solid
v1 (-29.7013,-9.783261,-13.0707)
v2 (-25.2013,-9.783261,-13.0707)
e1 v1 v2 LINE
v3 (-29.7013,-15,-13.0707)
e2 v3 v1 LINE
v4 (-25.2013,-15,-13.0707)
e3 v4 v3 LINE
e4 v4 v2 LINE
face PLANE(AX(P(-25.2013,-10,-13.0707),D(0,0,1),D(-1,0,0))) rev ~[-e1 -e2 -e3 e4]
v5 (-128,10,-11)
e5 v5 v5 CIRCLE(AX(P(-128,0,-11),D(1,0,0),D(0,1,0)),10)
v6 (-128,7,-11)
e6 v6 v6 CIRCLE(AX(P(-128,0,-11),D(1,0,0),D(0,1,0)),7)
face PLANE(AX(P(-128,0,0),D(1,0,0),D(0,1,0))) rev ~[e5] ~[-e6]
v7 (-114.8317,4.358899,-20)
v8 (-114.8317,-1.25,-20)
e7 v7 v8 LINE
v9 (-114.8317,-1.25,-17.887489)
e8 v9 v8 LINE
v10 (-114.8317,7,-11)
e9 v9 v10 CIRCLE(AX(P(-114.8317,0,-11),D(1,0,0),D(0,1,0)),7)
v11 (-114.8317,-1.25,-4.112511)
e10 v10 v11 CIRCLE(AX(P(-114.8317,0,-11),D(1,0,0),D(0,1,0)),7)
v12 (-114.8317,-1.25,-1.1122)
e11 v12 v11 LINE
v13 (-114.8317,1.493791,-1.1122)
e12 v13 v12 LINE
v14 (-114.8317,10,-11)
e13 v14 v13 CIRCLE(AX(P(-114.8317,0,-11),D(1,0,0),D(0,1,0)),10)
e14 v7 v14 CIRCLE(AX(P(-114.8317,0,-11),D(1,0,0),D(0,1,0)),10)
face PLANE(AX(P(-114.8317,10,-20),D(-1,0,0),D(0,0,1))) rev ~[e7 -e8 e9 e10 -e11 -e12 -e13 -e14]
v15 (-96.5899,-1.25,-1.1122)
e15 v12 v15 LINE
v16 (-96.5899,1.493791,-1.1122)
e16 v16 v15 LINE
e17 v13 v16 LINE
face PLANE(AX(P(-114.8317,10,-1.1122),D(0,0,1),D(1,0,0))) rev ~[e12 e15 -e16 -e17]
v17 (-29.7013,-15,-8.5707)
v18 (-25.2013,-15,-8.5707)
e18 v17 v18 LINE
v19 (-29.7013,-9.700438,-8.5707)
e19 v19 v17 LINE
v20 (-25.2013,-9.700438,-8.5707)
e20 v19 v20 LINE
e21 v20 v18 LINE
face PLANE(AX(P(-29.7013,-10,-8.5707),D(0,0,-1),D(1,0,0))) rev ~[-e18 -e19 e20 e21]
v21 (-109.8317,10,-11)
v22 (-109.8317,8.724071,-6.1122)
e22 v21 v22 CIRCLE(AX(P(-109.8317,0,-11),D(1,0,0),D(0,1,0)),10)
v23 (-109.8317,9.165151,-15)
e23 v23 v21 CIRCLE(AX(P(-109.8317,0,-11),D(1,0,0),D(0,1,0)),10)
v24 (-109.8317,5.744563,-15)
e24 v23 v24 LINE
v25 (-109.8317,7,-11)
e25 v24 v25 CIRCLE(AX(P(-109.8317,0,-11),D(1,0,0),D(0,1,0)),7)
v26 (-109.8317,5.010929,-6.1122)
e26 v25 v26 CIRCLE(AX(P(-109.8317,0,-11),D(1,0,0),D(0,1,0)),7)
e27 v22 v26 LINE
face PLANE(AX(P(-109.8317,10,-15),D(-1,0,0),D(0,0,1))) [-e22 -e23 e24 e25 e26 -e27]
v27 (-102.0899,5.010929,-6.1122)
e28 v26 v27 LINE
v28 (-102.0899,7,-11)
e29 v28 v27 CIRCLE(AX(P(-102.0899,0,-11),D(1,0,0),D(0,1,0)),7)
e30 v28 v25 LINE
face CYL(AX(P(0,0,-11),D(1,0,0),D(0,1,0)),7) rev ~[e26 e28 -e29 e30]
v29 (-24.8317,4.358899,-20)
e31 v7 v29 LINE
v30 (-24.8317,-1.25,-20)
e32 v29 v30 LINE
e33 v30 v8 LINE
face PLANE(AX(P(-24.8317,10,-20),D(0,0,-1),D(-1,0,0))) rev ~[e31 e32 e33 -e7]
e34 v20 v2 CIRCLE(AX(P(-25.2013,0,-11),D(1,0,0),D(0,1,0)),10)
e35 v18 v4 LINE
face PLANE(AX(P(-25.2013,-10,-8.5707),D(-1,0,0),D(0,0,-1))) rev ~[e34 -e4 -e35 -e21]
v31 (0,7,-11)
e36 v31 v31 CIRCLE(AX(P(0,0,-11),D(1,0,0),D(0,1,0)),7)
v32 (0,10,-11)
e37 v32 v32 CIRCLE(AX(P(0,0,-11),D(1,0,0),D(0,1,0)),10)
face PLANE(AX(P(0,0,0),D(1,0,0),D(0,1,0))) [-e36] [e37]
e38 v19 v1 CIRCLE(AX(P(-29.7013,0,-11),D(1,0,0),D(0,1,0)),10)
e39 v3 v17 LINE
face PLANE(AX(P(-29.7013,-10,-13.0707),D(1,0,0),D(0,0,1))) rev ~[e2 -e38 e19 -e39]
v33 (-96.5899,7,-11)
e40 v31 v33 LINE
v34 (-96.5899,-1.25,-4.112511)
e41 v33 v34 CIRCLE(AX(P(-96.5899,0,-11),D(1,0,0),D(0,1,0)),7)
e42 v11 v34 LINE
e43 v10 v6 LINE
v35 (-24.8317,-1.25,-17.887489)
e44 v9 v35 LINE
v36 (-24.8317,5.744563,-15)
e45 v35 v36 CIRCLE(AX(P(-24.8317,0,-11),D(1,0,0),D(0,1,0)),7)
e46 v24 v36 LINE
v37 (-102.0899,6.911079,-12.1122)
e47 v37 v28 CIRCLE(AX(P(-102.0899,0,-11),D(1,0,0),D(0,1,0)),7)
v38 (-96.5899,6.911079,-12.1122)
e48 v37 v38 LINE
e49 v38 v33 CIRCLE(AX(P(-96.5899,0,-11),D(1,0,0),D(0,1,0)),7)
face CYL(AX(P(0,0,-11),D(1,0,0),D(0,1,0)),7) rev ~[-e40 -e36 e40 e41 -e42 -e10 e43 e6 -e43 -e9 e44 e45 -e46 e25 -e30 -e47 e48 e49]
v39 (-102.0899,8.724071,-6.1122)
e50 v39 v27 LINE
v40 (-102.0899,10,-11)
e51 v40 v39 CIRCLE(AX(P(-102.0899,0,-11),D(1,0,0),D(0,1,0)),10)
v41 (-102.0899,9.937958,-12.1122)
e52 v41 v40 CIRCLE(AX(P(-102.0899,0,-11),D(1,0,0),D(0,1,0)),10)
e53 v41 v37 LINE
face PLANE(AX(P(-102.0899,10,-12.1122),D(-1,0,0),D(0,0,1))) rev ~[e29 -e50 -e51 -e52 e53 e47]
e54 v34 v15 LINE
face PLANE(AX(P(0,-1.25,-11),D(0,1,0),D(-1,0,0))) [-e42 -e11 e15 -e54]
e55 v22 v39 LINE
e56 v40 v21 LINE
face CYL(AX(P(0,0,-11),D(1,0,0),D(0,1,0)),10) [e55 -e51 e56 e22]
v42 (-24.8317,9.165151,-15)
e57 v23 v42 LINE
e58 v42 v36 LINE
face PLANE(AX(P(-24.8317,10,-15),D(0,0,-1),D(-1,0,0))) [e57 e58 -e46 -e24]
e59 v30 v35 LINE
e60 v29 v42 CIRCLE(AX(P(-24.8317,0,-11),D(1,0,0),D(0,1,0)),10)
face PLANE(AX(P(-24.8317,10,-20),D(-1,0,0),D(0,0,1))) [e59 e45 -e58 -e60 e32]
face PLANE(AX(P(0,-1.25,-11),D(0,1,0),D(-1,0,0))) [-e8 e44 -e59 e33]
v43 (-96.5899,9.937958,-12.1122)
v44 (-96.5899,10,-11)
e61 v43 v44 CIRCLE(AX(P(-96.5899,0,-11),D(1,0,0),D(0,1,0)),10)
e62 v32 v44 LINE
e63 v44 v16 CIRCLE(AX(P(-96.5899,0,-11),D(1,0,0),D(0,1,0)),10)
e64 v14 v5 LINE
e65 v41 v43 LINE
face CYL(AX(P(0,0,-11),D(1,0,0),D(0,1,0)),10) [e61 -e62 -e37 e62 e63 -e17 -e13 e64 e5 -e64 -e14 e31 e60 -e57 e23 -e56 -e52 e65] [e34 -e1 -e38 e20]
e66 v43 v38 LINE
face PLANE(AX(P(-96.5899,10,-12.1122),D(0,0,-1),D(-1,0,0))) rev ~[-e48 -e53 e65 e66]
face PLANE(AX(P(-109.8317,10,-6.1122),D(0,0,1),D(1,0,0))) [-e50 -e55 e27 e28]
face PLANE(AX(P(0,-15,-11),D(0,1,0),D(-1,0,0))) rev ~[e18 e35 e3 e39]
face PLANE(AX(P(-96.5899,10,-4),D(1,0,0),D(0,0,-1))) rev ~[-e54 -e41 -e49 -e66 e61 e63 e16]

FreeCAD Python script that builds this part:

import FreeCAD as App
import Part
import Sketcher

V = App.Vector


def faces_at(feature, points):
    """Names of the faces that lie closest to the given points."""
    faces = feature.Shape.Faces
    near = lambda p: min(range(len(faces)), key=lambda i: faces[i].distToShape(Part.Vertex(*p))[0])
    return sorted({f"Face{near(p) + 1}" for p in points})


def add_polygon(sketch, points):
    """Adds a closed chain of lines whose ends are joined by coincident constraints."""
    first, n = sketch.GeometryCount, len(points)
    for a, b in zip(points, points[1:] + points[:1]):
        sketch.addGeometry(Part.LineSegment(App.Vector(*a, 0), App.Vector(*b, 0)), False)
    for i in range(n):
        sketch.addConstraint(Sketcher.Constraint("Coincident", first + i, 2, first + (i + 1) % n, 1))

doc = App.newDocument("Part")
body = doc.addObject("PartDesign::Body", "Body")

sketch1 = body.newObject("Sketcher::SketchObject", "Sketch")
sketch1.AttachmentSupport = (doc.getObject("YZ_Plane"), [""])
sketch1.MapMode = "FlatFace"
sketch1.addGeometry(Part.Circle(V(0, -11, 0), V(0, 0, 1), 10), False)
sketch1.addConstraint([
    Sketcher.Constraint("PointOnObject", 0, 3, -2),
    Sketcher.Constraint("Diameter", 0, 20.0),
    Sketcher.Constraint("DistanceY", 0, 3, -1, 1, 11.0),
])
pad1 = body.newObject("PartDesign::Pad", "Pad")
pad1.Profile = sketch1
pad1.Length = 128
pad1.Reversed = True
doc.recompute()

thickness = body.newObject("PartDesign::Thickness", "Thickness")
thickness.Base = (pad1, faces_at(pad1, [(0, -3.236, -10.202), (-128, -3.236, -10.202)]))
thickness.Value = 3
thickness.Reversed = True
thickness.Join = "Intersection"

sketch2 = body.newObject("Sketcher::SketchObject", "Sketch001")
sketch2.AttachmentSupport = (doc.getObject("XZ_Plane"), [""])
sketch2.MapMode = "FlatFace"
sketch2.AttachmentOffset = App.Placement(V(0, 0, -10), App.Rotation())
add_polygon(sketch2, [(-25, -15), (-25, -20), (-115, -20), (-115, -1), (-97, -1), (-97, -12), (-102, -12), (-102, -6), (-110, -6), (-110, -15)])
sketch2.addConstraint([
    Sketcher.Constraint("Vertical", 0),
    Sketcher.Constraint("Horizontal", 1),
    Sketcher.Constraint("Vertical", 2),
    Sketcher.Constraint("Horizontal", 3),
    Sketcher.Constraint("Vertical", 4),
    Sketcher.Constraint("Horizontal", 5),
    Sketcher.Constraint("Vertical", 6),
    Sketcher.Constraint("Horizontal", 7),
    Sketcher.Constraint("Vertical", 8),
    Sketcher.Constraint("Horizontal", 9),
    Sketcher.Constraint("DistanceX", 1, 2, 1, 1, 90.0),
    Sketcher.Constraint("DistanceX", 9, 1, 9, 2, 85.0),
    Sketcher.Constraint("DistanceY", 0, 2, 0, 1, 5.0),
    Sketcher.Constraint("DistanceY", 4, 2, 4, 1, 11.0),
    Sketcher.Constraint("DistanceY", 6, 1, 6, 2, 6.0),
    Sketcher.Constraint("DistanceX", 5, 2, 5, 1, 5.5),
    Sketcher.Constraint("DistanceY", 0, 2, -1, 1, 20.0),
    Sketcher.Constraint("DistanceX", 3, 2, -1, 1, 96.59),
    Sketcher.Constraint("DistanceX", 3, 1, 3, 2, 18.2418),
    Sketcher.Constraint("DistanceY", 2, 1, 2, 2, 18.8878),
])
pocket1 = body.newObject("PartDesign::Pocket", "Pocket")
pocket1.Profile = sketch2
pocket1.Length = 11.25
pocket1.Reversed = True

sketch3 = body.newObject("Sketcher::SketchObject", "Sketch002")
sketch3.AttachmentSupport = (doc.getObject("XZ_Plane"), [""])
sketch3.MapMode = "FlatFace"
sketch3.AttachmentOffset = App.Placement(V(0, 0, 10), App.Rotation())
add_polygon(sketch3, [(-25.2, -8.6), (-25.2, -13.1), (-29.7, -13.1), (-29.7, -8.6)])
sketch3.addConstraint([
    Sketcher.Constraint("Vertical", 0),
    Sketcher.Constraint("Horizontal", 1),
    Sketcher.Constraint("Vertical", 2),
    Sketcher.Constraint("Horizontal", 3),
    Sketcher.Constraint("Equal", 3, 0),
    Sketcher.Constraint("DistanceX", 1, 2, 1, 1, 4.5),
    Sketcher.Constraint("DistanceX", 0, 2, -1, 1, 25.2013),
    Sketcher.Constraint("DistanceY", 0, 2, -1, 1, 13.0707),
])
pad2 = body.newObject("PartDesign::Pad", "Pad001")
pad2.Profile = sketch3
pad2.Type = "TwoLengths"
pad2.Length = 2.5
pad2.Length2 = 5
pad2.Reversed = True

doc.recompute()
